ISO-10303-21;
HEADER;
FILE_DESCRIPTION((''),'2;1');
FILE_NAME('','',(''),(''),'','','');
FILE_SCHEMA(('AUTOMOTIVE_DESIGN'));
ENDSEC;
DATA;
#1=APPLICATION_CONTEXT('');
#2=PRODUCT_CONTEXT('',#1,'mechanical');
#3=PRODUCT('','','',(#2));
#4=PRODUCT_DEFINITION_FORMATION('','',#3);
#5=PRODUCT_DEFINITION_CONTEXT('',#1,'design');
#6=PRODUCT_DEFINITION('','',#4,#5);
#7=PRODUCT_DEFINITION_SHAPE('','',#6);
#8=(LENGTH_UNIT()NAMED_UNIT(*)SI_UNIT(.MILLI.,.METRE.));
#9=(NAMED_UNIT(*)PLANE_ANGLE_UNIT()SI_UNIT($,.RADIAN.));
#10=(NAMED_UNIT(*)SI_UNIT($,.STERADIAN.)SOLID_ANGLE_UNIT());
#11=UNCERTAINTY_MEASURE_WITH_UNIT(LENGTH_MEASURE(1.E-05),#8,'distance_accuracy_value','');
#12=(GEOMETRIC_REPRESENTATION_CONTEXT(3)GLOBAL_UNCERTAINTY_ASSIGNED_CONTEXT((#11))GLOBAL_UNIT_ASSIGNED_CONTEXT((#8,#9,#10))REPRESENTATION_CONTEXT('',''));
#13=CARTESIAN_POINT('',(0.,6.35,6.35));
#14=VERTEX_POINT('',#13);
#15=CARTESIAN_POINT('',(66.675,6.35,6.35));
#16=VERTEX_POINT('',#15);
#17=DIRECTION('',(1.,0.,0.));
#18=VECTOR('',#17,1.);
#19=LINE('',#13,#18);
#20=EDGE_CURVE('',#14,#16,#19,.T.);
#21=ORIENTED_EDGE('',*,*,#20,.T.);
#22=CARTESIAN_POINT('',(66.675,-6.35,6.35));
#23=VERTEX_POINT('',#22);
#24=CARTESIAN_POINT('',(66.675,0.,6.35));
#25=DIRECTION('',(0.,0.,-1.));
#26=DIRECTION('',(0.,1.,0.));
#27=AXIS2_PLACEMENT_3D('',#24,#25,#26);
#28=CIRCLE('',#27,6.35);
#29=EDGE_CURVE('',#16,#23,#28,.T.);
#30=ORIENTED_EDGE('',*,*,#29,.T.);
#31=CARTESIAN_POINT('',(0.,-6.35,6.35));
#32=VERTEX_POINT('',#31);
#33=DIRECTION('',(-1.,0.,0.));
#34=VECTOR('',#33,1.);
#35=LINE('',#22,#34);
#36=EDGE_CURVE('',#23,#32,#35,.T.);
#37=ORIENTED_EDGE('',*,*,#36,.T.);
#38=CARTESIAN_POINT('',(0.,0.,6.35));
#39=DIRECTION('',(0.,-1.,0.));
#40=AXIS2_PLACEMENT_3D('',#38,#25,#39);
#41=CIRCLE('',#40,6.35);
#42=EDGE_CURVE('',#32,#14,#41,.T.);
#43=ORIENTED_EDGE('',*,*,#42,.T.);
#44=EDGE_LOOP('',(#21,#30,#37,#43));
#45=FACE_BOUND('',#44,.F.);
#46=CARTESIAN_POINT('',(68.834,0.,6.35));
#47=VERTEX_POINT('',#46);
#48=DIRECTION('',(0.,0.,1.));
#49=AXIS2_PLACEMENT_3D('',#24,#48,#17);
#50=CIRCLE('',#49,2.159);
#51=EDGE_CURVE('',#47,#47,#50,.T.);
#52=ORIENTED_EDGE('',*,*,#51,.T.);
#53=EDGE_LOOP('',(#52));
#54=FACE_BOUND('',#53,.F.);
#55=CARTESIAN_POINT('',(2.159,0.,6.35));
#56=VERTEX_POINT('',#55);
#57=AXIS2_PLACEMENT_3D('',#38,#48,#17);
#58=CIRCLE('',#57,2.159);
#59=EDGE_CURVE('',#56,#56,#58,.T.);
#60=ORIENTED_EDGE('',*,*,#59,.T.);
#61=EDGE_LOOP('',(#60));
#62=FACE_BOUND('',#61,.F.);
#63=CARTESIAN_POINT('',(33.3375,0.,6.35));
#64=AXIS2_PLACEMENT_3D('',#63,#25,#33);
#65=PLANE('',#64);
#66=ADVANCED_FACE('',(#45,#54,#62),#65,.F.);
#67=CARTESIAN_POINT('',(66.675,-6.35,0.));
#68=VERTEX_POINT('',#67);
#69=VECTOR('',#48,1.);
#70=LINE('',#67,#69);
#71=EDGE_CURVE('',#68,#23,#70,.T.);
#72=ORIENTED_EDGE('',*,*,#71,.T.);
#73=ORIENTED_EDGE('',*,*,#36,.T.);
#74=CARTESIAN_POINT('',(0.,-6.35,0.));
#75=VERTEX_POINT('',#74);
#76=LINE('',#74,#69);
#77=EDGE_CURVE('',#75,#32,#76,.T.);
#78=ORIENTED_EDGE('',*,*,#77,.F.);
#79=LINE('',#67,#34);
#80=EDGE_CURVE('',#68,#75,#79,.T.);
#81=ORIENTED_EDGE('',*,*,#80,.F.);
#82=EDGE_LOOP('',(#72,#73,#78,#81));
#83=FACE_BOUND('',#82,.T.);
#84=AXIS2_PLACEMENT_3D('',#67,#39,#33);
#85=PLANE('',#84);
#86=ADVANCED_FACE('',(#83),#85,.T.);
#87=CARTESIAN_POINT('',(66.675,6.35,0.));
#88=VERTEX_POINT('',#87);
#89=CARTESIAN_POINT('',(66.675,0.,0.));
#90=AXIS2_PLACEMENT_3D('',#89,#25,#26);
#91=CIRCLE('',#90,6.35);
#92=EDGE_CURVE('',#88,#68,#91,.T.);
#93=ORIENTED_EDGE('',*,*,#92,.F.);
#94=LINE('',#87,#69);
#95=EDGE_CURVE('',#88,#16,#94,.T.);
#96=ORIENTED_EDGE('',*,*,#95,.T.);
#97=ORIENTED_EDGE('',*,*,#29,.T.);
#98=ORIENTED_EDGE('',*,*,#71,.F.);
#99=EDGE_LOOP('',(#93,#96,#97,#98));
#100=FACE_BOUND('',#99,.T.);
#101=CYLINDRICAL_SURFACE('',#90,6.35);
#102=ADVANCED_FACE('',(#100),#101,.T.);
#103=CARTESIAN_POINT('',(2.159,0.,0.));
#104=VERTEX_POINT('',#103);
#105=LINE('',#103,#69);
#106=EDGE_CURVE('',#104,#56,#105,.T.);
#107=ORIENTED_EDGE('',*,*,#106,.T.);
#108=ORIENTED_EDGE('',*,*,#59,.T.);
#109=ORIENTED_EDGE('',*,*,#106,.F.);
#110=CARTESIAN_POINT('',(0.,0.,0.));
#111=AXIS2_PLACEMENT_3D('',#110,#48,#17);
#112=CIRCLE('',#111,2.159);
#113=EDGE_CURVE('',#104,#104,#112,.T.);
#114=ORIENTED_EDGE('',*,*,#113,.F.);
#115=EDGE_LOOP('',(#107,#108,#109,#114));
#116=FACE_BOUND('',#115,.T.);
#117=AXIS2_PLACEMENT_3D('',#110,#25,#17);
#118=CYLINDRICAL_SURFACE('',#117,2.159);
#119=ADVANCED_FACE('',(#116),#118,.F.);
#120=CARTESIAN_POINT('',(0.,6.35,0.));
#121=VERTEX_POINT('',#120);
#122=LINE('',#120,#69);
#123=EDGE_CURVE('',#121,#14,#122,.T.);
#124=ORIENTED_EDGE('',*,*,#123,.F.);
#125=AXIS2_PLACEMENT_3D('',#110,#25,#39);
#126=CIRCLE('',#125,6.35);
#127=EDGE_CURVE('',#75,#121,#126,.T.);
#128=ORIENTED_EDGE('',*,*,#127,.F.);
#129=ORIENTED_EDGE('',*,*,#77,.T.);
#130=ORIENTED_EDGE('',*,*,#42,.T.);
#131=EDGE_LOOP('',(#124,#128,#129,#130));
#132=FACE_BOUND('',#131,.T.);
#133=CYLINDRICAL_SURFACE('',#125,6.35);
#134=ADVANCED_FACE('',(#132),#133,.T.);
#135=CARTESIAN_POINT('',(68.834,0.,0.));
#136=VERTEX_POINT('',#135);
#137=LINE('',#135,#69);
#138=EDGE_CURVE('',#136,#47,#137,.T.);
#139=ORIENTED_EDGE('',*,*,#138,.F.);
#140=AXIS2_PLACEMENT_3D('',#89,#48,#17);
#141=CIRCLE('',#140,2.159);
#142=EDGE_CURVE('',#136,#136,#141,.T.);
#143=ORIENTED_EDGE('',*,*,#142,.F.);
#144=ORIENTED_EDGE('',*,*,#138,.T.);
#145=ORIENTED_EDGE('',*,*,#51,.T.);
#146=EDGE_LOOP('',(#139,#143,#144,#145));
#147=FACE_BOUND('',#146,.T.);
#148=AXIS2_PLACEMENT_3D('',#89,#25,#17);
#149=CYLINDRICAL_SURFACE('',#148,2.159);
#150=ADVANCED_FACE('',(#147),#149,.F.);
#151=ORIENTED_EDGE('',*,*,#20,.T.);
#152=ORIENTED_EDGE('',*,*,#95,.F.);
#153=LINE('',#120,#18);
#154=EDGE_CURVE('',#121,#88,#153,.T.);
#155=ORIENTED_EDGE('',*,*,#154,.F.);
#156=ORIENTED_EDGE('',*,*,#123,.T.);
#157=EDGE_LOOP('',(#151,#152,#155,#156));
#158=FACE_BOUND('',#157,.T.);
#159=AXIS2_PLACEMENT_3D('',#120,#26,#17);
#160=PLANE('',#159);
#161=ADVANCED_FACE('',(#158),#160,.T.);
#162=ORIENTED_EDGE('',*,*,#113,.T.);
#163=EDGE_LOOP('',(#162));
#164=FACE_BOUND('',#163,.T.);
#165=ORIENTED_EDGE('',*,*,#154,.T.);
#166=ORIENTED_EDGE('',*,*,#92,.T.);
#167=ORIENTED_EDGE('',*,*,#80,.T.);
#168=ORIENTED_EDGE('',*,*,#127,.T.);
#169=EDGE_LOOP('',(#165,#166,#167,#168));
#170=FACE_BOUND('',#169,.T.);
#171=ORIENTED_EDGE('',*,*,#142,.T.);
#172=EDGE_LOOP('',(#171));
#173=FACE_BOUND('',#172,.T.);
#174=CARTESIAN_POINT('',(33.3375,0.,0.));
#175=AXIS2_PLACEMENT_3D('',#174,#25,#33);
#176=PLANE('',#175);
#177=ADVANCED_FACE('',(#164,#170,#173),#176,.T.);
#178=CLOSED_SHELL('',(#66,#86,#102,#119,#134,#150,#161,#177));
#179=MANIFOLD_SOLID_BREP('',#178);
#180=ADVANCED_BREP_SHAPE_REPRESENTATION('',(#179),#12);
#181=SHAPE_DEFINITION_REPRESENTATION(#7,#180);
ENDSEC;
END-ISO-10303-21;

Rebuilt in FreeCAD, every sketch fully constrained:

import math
import FreeCAD as App
import Part
import Sketcher
Q = App.Units.Quantity

doc = App.newDocument("Part")
body = doc.addObject("PartDesign::Body", "Body")

# Sketch on XY plane
sketch1 = body.newObject("Sketcher::SketchObject", "Sketch")
sketch1.AttachmentSupport = (doc.getObject("XY_Plane"), [""])
sketch1.MapMode = "FlatFace"
sketch1.addGeometry([
    Part.LineSegment(App.Vector(66.7, 6.3, 0), App.Vector(0, 6.3, 0)),  # 0
    Part.ArcOfCircle(Part.Circle(App.Vector(0, 0, 0), App.Vector(0, 0, 1), 6.3), math.radians(90), math.radians(270)),  # 1
    Part.LineSegment(App.Vector(0, -6.3, 0), App.Vector(66.7, -6.3, 0)),  # 2
    Part.ArcOfCircle(Part.Circle(App.Vector(66.7, 0, 0), App.Vector(0, 0, 1), 6.3), math.radians(-90), math.radians(90)),  # 3
    Part.Circle(App.Vector(66.7, 0, 0), App.Vector(0, 0, 1), 2.2),  # 4
    Part.Circle(App.Vector(0, 0, 0), App.Vector(0, 0, 1), 2.2),  # 5
], False)
sketch1.addConstraint([
    Sketcher.Constraint("Tangent", 0, 2, 1, 1),
    Sketcher.Constraint("Tangent", 1, 2, 2, 1),
    Sketcher.Constraint("Tangent", 2, 2, 3, 1),
    Sketcher.Constraint("Tangent", 3, 2, 0, 1),
    Sketcher.Constraint("Horizontal", 0),
    Sketcher.Constraint("Horizontal", 2),
    Sketcher.Constraint("Coincident", 1, 3, -1, 1),
    Sketcher.Constraint("Coincident", 5, 3, -1, 1),
    Sketcher.Constraint("Coincident", 4, 3, 3, 3),
    Sketcher.Constraint("Equal", 4, 5),
    Sketcher.Constraint("Diameter", 4, Q("0.17 in")),
    Sketcher.Constraint("Radius", 1, Q("0.25 in")),
    Sketcher.Constraint("DistanceX", 0, 2, 0, 1, Q("2.625 in")),
])
pad1 = body.newObject("PartDesign::Pad", "Pad")
pad1.Profile = sketch1
pad1.Length = Q("0.25 in")

doc.recompute()
